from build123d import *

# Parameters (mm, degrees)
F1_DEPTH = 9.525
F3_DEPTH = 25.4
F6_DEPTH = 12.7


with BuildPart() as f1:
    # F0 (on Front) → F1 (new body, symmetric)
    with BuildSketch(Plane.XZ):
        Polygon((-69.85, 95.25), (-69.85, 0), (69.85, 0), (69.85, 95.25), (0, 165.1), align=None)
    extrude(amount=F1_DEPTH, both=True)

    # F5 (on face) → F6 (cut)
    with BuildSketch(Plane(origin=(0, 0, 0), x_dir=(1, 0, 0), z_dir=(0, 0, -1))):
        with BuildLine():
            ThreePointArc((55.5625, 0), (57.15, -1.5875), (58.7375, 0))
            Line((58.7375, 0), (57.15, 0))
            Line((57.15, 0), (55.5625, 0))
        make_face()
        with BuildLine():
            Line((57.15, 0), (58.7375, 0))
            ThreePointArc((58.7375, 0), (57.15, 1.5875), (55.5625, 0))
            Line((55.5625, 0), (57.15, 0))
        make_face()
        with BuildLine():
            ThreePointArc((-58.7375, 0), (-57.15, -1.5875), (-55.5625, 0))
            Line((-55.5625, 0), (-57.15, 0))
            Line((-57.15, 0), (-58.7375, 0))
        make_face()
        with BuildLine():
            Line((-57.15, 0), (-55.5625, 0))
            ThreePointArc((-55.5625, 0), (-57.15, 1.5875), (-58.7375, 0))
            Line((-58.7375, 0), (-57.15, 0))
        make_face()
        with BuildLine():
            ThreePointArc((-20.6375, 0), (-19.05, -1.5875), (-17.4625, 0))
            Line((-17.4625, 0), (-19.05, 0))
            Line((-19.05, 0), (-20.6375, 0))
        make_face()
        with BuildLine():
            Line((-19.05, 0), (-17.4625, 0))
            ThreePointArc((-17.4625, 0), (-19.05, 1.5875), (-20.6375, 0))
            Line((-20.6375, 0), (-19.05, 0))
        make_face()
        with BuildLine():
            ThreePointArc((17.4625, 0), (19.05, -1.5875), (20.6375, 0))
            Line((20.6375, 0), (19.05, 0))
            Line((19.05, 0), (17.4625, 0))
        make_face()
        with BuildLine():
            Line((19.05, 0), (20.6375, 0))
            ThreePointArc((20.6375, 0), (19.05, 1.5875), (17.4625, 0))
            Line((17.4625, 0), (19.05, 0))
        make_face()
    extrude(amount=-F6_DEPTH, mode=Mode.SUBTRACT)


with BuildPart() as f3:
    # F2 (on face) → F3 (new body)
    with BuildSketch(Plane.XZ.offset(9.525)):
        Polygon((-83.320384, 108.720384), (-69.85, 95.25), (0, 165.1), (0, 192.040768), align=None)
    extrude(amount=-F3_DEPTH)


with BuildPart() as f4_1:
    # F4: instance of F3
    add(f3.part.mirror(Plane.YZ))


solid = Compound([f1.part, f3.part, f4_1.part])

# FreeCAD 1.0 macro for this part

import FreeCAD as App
import Part
import Sketcher

V = App.Vector
Q = App.Units.Quantity


def add_polygon(sketch, points):
    """Adds a closed chain of lines whose ends are joined by coincident constraints."""
    first, n = sketch.GeometryCount, len(points)
    for a, b in zip(points, points[1:] + points[:1]):
        sketch.addGeometry(Part.LineSegment(App.Vector(*a, 0), App.Vector(*b, 0)), False)
    for i in range(n):
        sketch.addConstraint(Sketcher.Constraint("Coincident", first + i, 2, first + (i + 1) % n, 1))

doc = App.newDocument("Part")
params = doc.addObject("Spreadsheet::Sheet", "Params")
for row, (alias, value) in enumerate([
    ("sketch1_width", "5.5 in"),
    ("sketch1_height", "3.75 in"),
    ("pad1_length", "0.75 in"),
    ("sketch2_diameter", "0.125 in"),
    ("pocket1_length", "0.5 in"),
    ("sketch3_length", "0.75 in"),
    ("pad2_length", "1 in"),
], start=1):
    params.set(f"A{row}", alias)
    params.set(f"B{row}", "=" + value)
    params.setAlias(f"B{row}", alias)

body = doc.addObject("PartDesign::Body", "Body")

sketch1 = doc.addObject("Sketcher::SketchObject", "Sketch")
body.addObject(sketch1)
sketch1.AttachmentSupport = (doc.XZ_Plane, [""])
sketch1.MapMode = "FlatFace"
add_polygon(sketch1, [(-69.85, 95.25), (-69.85, 0), (69.85, 0), (69.85, 95.25), (0, 165.1)])
sketch1.addConstraint([
    Sketcher.Constraint("Vertical", 0),
    Sketcher.Constraint("Horizontal", 1),
    Sketcher.Constraint("Vertical", 2),
    Sketcher.Constraint("Symmetric", 0, 2, 1, 2, -1, 1),
    Sketcher.Constraint("PointOnObject", 3, 2, -2),
    Sketcher.Constraint("Perpendicular", 3, 4),
    Sketcher.Constraint("Horizontal", 2, 2, 4, 2),
    Sketcher.Constraint("DistanceX", 1, 1, 1, 2, Q("5.5 in")),
    Sketcher.Constraint("DistanceY", 0, 2, 0, 1, Q("3.75 in")),
])
sketch1.setExpression("Constraints[12]", "Params.sketch1_width")
sketch1.setExpression("Constraints[13]", "Params.sketch1_height")
pad1 = doc.addObject("PartDesign::Pad", "Pad")
body.addObject(pad1)
pad1.Profile = sketch1
pad1.setExpression("Length", "Params.pad1_length")
pad1.Midplane = True

sketch2 = doc.addObject("Sketcher::SketchObject", "Sketch001")
body.addObject(sketch2)
sketch2.AttachmentSupport = (doc.XY_Plane, [""])
sketch2.MapMode = "FlatFace"
sketch2.addGeometry([
    Part.Circle(V(57.15, 0, 0), V(0, 0, 1), 1.5875),
    Part.Circle(V(-57.15, 0, 0), V(0, 0, 1), 1.5875),
    Part.Circle(V(-19.05, 0, 0), V(0, 0, 1), 1.5875),
    Part.Circle(V(19.05, 0, 0), V(0, 0, 1), 1.5875),
], False)
sketch2.addConstraint([
    Sketcher.Constraint("Equal", 0, 1),
    Sketcher.Constraint("Equal", 1, 2),
    Sketcher.Constraint("Equal", 2, 3),
    Sketcher.Constraint("Symmetric", 0, 3, 1, 3, -1, 1),
    Sketcher.Constraint("Symmetric", 2, 3, 3, 3, -1, 1),
    Sketcher.Constraint("PointOnObject", 0, 3, -1),
    Sketcher.Constraint("PointOnObject", 2, 3, -1),
    Sketcher.Constraint("Diameter", 0, Q("0.125 in")),
    Sketcher.Constraint("DistanceX", 2, 3, 0, 3, Q("3 in")),
    Sketcher.Constraint("DistanceX", 1, 3, 0, 3, Q("4.5 in")),
])
sketch2.setExpression("Constraints[7]", "Params.sketch2_diameter")
pocket1 = doc.addObject("PartDesign::Pocket", "Pocket")
body.addObject(pocket1)
pocket1.Profile = sketch2
pocket1.setExpression("Length", "Params.pocket1_length")
pocket1.Reversed = True
body2 = doc.addObject("PartDesign::Body", "Body001")

sketch3 = doc.addObject("Sketcher::SketchObject", "Sketch002")
body2.addObject(sketch3)
sketch3.AttachmentSupport = (doc.getObject("XZ_Plane001"), [""])
sketch3.MapMode = "FlatFace"
sketch3.AttachmentOffset = App.Placement(V(0, 0, 0.375 * 25.4), App.Rotation())
add_polygon(sketch3, [(-83.320384, 108.720384), (-69.85, 95.25), (0, 165.1), (0, 192.040768)])
sketch3.addConstraint([
    Sketcher.Constraint("Vertical", 2),
    Sketcher.Constraint("PointOnObject", 1, 2, -2),
    Sketcher.Constraint("Perpendicular", 0, 1),
    Sketcher.Constraint("Parallel", 1, 3),
    Sketcher.Constraint("Angle", 0, Q("-45 deg")),
    Sketcher.Constraint("DistanceY", -1, 1, 1, 2, Q("6.5 in")),
    Sketcher.Constraint("Distance", 0, Q("0.75 in")),
    Sketcher.Constraint("DistanceX", 0, 2, -1, 1, Q("2.75 in")),
])
sketch3.setExpression("Constraints[10]", "Params.sketch3_length")
pad2 = doc.addObject("PartDesign::Pad", "Pad001")
body2.addObject(pad2)
pad2.Profile = sketch3
pad2.setExpression("Length", "Params.pad2_length")
pad2.Reversed = True
body3 = doc.addObject("PartDesign::Body", "Body002")
doc.recompute()

mirroring = doc.addObject("Part::Mirroring", "Mirroring")
mirroring.Source = body2
mirroring.Base = V(0, 0, 0)
mirroring.Normal = V(1, 0, 0)
body3.BaseFeature = mirroring
doc.recompute()
mirroring.Visibility = False

doc.recompute()
